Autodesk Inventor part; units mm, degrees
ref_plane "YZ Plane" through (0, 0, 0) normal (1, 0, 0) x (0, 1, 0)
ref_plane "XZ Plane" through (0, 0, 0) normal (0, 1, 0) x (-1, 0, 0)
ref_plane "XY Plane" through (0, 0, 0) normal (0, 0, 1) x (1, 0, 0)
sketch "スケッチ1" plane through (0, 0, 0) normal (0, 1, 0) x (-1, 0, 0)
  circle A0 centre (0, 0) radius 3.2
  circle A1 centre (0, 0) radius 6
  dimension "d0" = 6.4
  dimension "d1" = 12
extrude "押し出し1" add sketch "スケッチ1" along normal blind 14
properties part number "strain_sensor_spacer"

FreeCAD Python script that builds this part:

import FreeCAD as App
import Part
import Sketcher
Q = App.Units.Quantity

doc = App.newDocument("Part")
body = doc.addObject("PartDesign::Body", "Body")

sketch1 = body.newObject("Sketcher::SketchObject", "Sketch")
sketch1.AttachmentSupport = (doc.getObject("XZ_Plane"), [""])
sketch1.MapMode = "FlatFace"
sketch1.addGeometry([
    Part.Circle(App.Vector(0, 0, 0), App.Vector(0, 0, 1), 6),
    Part.Circle(App.Vector(0, 0, 0), App.Vector(0, 0, 1), 3.2),
], False)
sketch1.addConstraint([
    Sketcher.Constraint("Coincident", 0, 3, -1, 1),
    Sketcher.Constraint("Coincident", 1, 3, -1, 1),
    Sketcher.Constraint("Diameter", 0, Q("12 mm")),
    Sketcher.Constraint("Diameter", 1, Q("6.4 mm")),
])
pad1 = body.newObject("PartDesign::Pad", "Pad")
pad1.Profile = sketch1
pad1.Length = 14
pad1.Reversed = True

doc.recompute()
